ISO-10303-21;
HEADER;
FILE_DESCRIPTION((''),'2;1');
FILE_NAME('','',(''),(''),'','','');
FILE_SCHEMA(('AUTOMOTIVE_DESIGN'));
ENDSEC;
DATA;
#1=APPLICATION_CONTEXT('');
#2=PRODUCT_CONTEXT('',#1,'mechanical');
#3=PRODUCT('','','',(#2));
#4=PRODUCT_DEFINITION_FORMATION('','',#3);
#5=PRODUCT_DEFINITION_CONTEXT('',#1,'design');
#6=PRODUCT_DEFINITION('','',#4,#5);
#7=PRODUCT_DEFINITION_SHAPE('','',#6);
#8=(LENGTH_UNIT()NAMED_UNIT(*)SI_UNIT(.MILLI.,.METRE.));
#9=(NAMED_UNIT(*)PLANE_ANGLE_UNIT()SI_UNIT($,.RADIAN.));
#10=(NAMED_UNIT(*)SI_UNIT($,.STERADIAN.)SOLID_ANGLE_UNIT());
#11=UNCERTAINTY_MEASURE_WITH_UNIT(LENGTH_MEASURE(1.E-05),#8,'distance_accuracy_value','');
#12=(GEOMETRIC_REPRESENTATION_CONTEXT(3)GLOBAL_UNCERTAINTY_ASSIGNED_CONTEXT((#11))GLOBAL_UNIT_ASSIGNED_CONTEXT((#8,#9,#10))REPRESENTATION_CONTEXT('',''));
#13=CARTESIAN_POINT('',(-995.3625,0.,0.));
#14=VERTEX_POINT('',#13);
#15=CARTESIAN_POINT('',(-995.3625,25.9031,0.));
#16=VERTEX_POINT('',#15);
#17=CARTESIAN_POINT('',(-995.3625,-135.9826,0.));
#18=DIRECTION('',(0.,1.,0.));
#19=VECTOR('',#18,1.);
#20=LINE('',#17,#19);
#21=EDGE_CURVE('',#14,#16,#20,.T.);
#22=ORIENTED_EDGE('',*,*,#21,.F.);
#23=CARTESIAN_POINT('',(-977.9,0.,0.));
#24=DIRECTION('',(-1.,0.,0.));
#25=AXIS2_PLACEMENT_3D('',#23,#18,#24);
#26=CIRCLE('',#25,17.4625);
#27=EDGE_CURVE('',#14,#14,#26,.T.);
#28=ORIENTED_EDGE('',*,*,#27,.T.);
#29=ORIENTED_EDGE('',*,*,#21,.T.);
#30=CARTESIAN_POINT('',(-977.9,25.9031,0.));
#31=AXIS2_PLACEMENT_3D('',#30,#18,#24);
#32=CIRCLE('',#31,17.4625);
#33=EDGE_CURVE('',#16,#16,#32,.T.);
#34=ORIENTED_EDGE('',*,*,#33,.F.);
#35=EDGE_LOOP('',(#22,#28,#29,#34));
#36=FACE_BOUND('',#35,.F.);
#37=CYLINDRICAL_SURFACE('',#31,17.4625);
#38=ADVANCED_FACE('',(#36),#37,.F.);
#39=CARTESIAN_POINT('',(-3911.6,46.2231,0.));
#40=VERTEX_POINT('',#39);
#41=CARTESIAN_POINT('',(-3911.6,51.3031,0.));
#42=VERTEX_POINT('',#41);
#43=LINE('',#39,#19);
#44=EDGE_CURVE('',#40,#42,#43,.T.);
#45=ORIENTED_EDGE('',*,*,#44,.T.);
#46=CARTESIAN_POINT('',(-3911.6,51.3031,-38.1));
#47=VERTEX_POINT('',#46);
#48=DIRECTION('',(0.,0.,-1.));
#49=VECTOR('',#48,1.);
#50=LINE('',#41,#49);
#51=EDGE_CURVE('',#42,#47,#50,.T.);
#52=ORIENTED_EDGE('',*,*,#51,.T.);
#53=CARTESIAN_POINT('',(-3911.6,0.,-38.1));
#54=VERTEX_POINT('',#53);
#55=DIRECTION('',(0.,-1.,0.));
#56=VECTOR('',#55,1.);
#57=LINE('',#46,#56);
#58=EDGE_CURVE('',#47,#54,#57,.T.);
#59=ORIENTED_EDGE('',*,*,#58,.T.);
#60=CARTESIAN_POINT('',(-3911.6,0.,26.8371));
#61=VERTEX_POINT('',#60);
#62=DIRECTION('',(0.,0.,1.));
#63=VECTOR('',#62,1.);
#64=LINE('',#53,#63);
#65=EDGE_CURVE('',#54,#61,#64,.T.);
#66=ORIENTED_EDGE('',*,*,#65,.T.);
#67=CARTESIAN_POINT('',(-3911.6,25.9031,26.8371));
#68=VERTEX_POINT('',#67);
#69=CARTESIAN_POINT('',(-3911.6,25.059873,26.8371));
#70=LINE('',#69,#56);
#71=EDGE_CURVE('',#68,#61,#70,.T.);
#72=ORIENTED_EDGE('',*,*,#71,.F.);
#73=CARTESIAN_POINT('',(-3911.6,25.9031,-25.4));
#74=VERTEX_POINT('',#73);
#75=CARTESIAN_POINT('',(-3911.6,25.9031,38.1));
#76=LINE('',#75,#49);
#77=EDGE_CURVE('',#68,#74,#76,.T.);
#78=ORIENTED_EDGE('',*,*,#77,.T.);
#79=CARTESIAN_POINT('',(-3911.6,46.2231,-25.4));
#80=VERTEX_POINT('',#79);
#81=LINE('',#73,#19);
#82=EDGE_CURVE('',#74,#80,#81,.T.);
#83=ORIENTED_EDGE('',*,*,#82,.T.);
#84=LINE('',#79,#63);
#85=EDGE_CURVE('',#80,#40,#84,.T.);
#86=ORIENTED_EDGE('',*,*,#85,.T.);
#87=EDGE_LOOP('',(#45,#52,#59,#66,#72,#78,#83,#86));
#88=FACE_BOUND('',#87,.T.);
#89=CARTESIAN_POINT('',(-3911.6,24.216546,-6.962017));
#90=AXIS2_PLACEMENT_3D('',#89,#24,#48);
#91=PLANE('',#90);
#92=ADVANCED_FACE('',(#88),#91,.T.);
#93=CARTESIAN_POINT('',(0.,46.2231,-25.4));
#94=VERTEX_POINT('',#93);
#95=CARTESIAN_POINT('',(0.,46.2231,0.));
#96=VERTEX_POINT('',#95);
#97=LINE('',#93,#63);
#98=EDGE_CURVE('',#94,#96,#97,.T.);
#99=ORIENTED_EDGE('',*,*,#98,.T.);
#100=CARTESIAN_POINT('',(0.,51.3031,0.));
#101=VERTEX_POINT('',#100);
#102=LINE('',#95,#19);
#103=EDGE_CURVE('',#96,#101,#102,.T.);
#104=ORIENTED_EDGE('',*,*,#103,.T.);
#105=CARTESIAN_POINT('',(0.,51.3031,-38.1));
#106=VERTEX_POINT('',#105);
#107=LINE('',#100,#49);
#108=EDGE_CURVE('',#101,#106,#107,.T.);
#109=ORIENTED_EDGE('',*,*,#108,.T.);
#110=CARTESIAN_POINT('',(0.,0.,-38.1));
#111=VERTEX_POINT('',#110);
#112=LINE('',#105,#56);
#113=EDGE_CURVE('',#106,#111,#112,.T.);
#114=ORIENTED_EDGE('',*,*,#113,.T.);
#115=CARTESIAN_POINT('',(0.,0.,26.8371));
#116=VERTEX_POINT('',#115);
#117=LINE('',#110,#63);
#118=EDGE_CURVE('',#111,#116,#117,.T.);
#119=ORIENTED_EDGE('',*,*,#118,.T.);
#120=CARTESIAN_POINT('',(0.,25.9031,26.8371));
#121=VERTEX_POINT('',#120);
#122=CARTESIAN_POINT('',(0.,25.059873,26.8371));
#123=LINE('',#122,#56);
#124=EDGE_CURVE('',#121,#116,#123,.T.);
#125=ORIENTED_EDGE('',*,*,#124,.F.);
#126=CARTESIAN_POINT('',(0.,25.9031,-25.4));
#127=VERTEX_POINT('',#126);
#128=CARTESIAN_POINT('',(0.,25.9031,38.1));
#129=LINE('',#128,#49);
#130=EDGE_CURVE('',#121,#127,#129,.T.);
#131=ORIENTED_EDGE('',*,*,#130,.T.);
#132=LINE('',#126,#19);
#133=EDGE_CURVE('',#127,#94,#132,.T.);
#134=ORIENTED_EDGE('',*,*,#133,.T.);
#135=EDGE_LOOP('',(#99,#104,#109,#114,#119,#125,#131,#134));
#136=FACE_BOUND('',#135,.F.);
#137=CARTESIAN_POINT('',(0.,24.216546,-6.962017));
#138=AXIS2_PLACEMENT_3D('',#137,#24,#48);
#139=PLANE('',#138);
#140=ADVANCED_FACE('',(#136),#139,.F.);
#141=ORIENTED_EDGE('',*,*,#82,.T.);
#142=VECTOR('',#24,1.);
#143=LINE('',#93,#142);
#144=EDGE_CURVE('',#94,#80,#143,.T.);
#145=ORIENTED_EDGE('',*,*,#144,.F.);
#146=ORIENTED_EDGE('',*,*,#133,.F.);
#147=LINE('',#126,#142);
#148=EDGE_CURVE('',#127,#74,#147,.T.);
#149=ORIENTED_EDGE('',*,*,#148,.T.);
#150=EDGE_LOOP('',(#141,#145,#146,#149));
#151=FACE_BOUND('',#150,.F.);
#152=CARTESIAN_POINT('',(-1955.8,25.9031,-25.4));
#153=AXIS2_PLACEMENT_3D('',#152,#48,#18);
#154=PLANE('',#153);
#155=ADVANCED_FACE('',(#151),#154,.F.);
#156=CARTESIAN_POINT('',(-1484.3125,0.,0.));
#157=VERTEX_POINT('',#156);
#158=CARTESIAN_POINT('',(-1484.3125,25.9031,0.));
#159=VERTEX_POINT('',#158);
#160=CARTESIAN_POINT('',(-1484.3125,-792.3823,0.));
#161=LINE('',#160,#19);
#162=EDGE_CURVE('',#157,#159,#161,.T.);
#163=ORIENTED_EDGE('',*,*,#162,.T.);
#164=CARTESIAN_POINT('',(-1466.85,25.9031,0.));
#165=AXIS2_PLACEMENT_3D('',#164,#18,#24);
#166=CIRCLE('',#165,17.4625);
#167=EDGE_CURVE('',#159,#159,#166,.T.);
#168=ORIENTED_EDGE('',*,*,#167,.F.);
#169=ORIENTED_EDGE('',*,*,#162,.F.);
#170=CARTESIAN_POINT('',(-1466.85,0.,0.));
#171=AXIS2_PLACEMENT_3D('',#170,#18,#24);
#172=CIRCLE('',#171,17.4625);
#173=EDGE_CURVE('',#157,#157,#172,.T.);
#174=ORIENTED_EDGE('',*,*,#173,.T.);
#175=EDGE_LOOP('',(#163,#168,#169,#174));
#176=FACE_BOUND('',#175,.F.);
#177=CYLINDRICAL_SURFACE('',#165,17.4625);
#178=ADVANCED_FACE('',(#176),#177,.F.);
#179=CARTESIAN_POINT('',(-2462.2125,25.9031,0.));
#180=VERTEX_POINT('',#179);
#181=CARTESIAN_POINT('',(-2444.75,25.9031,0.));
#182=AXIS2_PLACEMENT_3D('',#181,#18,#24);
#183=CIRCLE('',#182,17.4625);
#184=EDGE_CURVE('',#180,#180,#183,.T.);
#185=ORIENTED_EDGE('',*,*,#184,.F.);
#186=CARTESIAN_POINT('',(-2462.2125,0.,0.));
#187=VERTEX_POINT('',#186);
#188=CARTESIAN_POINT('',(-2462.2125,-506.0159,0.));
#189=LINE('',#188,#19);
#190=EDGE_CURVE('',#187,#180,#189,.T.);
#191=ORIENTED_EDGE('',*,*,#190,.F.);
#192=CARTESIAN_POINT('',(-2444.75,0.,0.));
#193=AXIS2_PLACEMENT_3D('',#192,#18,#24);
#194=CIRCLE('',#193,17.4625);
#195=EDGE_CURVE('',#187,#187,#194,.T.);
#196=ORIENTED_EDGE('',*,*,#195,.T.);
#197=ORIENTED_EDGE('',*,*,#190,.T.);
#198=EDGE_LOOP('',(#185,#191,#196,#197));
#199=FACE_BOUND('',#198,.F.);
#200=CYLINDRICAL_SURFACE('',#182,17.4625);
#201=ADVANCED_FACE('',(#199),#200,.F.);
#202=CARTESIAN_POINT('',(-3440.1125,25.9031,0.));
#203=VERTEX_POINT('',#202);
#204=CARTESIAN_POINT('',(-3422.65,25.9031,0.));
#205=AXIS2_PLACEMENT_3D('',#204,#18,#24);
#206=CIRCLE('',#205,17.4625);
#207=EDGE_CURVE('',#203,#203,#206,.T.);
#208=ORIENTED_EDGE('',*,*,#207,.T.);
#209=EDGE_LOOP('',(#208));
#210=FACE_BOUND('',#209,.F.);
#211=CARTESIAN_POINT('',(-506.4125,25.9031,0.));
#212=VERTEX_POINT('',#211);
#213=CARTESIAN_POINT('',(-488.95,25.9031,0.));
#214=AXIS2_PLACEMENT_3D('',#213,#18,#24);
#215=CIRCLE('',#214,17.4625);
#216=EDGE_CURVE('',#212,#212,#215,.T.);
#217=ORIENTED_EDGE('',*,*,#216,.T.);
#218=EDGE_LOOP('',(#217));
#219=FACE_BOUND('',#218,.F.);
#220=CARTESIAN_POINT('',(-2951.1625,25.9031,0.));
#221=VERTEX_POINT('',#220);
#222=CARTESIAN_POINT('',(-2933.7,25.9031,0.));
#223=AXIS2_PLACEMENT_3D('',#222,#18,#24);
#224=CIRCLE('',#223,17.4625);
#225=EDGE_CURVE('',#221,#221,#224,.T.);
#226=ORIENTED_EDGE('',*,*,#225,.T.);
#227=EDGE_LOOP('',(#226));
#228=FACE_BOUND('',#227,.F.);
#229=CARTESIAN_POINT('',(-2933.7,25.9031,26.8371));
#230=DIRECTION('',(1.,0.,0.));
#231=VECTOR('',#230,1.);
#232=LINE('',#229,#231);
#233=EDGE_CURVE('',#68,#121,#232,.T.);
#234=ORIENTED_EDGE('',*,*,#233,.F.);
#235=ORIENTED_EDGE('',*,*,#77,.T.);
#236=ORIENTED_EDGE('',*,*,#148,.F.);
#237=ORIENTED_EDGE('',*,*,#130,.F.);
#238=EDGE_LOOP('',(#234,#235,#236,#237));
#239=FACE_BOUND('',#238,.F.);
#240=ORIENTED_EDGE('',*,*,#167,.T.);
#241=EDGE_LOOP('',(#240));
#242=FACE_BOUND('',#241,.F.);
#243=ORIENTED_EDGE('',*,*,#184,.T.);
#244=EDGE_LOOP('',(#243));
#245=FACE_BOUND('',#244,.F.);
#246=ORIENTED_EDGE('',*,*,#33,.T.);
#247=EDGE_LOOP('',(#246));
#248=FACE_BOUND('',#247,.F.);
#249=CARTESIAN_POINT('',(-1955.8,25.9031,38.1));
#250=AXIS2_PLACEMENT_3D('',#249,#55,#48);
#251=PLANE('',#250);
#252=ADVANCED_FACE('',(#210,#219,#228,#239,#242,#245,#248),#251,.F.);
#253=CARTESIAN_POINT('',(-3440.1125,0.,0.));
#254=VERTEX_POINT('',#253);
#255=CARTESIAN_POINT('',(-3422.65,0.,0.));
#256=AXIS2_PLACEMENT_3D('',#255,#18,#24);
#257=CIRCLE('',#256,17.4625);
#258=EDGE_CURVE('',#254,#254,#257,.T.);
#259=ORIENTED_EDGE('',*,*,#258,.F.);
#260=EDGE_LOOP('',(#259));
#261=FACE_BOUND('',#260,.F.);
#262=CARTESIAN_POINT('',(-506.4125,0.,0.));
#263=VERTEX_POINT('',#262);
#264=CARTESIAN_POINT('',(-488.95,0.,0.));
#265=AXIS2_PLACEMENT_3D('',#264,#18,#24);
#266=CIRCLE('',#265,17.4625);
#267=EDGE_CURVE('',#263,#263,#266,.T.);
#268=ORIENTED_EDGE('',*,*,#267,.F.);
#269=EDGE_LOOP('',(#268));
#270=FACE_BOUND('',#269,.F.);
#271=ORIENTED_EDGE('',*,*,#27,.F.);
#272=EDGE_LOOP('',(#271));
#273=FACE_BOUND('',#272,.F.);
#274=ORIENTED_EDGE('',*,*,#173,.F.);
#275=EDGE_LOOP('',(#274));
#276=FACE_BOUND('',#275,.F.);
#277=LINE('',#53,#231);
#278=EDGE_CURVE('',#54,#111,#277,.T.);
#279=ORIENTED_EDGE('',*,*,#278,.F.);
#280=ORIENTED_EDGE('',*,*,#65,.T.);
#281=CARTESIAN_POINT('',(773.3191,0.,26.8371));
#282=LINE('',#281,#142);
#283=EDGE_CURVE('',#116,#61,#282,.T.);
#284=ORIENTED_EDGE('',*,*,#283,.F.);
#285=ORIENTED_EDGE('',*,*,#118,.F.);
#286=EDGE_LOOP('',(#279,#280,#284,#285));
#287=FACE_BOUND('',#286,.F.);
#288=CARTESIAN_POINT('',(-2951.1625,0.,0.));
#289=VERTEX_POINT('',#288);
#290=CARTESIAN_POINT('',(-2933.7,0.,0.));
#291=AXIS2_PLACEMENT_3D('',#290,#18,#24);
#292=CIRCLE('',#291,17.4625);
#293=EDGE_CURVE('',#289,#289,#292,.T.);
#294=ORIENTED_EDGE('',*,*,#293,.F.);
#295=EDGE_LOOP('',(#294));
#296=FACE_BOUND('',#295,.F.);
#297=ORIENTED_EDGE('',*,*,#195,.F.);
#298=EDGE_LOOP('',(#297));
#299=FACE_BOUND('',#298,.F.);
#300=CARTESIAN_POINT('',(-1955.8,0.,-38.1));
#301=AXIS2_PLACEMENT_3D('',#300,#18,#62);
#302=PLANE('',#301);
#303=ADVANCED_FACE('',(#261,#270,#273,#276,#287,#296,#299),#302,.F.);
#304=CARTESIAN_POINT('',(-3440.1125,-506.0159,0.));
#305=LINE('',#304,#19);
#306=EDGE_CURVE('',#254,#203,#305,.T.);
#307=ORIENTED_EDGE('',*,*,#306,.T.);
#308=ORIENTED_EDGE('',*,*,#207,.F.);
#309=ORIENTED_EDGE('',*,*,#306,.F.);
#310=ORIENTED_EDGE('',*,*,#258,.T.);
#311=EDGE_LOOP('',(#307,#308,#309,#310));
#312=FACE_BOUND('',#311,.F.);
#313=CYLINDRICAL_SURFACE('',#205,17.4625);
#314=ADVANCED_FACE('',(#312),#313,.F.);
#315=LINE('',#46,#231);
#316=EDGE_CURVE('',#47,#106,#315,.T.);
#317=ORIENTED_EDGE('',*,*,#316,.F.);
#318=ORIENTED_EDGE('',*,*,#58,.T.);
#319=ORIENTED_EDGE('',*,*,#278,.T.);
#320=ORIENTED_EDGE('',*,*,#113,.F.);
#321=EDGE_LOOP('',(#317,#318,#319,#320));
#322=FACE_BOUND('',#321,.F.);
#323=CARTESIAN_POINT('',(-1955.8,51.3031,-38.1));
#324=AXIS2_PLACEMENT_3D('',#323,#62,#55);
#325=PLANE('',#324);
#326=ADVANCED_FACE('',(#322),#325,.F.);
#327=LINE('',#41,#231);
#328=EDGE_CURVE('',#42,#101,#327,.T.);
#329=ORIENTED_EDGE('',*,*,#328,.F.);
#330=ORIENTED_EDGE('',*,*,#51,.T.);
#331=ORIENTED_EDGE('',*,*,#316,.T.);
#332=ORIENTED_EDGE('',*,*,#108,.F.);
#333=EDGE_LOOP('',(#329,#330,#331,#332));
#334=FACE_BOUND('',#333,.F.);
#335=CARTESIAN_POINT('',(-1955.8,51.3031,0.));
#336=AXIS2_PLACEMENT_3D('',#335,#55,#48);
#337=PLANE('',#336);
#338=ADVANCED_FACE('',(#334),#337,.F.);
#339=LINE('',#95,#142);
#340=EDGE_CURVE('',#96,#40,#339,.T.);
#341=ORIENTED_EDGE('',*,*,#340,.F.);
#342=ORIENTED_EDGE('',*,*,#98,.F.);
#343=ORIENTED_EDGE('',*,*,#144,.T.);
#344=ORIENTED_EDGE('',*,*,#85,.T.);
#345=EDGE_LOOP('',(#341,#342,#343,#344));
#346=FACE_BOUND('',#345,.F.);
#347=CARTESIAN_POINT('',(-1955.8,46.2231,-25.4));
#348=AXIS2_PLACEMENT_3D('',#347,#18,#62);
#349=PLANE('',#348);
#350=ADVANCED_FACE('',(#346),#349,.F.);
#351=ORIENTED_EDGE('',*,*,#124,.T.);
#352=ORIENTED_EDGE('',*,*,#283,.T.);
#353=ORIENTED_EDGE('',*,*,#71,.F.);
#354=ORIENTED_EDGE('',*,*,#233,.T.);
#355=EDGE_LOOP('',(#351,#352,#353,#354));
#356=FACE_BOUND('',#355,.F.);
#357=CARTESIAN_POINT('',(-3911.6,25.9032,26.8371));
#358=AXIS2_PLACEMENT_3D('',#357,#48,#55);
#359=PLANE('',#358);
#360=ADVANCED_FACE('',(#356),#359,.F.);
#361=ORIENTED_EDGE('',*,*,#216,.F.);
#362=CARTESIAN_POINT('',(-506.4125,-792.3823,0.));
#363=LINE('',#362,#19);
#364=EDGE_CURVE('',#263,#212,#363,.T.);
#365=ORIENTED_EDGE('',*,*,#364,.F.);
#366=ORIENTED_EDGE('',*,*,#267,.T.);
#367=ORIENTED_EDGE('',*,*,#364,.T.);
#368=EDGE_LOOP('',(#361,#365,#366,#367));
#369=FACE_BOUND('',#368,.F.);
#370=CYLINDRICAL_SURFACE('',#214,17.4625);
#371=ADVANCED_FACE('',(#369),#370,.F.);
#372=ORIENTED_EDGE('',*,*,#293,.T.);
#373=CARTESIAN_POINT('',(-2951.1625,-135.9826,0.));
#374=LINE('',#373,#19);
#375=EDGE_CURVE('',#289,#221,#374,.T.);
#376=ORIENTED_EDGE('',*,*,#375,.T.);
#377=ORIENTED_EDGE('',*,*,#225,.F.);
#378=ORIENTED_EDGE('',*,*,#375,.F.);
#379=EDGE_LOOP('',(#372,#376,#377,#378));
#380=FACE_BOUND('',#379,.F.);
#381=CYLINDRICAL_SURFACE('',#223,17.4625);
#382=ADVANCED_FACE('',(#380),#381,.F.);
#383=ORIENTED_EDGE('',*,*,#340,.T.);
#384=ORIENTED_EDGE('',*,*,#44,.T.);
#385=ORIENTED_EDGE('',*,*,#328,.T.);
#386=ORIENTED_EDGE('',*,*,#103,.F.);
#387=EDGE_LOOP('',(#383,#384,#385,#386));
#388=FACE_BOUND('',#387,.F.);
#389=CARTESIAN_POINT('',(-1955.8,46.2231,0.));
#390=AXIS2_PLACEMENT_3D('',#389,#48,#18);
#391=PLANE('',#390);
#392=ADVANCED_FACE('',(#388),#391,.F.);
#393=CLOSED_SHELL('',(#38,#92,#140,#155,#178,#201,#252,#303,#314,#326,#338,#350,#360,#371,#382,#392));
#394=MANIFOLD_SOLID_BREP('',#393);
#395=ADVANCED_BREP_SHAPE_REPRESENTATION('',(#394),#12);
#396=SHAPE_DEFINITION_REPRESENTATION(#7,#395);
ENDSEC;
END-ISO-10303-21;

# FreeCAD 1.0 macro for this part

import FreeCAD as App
import Part
import Sketcher

V = App.Vector
Q = App.Units.Quantity

doc = App.newDocument("Part")
body = doc.addObject("PartDesign::Body", "Body")

sketch1 = body.newObject("Sketcher::SketchObject", "Sketch")
sketch1.AttachmentSupport = (doc.getObject("YZ_Plane"), [""])
sketch1.MapMode = "FlatFace"
sketch1.AttachmentOffset = App.Placement(V(0, 0, -77 * 25.4), App.Rotation())
sketch1.addGeometry([
    Part.LineSegment(V(51, -38, 0), V(0, -38, 0)),
    Part.LineSegment(V(0, -38, 0), V(0, 38, 0)),
    Part.LineSegment(V(0, 38, 0), V(26, 38, 0)),
    Part.LineSegment(V(26, 38, 0), V(26, -25, 0)),
    Part.LineSegment(V(26, -25, 0), V(46, -25, 0)),
    Part.LineSegment(V(46, -25, 0), V(46, 0, 0)),
    Part.LineSegment(V(46, 0, 0), V(51, 0, 0)),
    Part.LineSegment(V(51, 0, 0), V(51, -38, 0)),
], False)
sketch1.addConstraint([
    Sketcher.Constraint("Coincident", 0, 2, 1, 1),
    Sketcher.Constraint("Coincident", 1, 2, 2, 1),
    Sketcher.Constraint("Coincident", 2, 2, 3, 1),
    Sketcher.Constraint("Coincident", 3, 2, 4, 1),
    Sketcher.Constraint("Coincident", 4, 2, 5, 1),
    Sketcher.Constraint("Coincident", 5, 2, 6, 1),
    Sketcher.Constraint("Coincident", 6, 2, 7, 1),
    Sketcher.Constraint("Coincident", 7, 2, 0, 1),
    Sketcher.Constraint("Horizontal", 0),
    Sketcher.Constraint("Vertical", 1),
    Sketcher.Constraint("Horizontal", 2),
    Sketcher.Constraint("Vertical", 3),
    Sketcher.Constraint("Horizontal", 4),
    Sketcher.Constraint("Vertical", 5),
    Sketcher.Constraint("Horizontal", 6),
    Sketcher.Constraint("Vertical", 7),
    Sketcher.Constraint("Symmetric", 0, 2, 1, 2, -1, 1),
    Sketcher.Constraint("PointOnObject", 5, 2, -1),
    Sketcher.Constraint("DistanceY", 1, 1, 1, 2, Q("3 in")),
    Sketcher.Constraint("DistanceY", 5, 1, 5, 2, Q("1 in")),
    Sketcher.Constraint("DistanceX", 4, 1, 4, 2, Q("0.8 in")),
    Sketcher.Constraint("DistanceX", 6, 1, 6, 2, Q("0.2 in")),
    Sketcher.Constraint("DistanceX", 0, 2, 0, 1, Q("2.0198 in")),
])
pad1 = body.newObject("PartDesign::Pad", "Pad")
pad1.Profile = sketch1
pad1.Length = Q("154 in")
pad1.Midplane = True

sketch2 = body.newObject("Sketcher::SketchObject", "Sketch001")
sketch2.AttachmentSupport = (doc.getObject("XZ_Plane"), [""])
sketch2.MapMode = "FlatFace"
sketch2.AttachmentOffset = App.Placement(V(0, 0, -1.0198071 * 25.4), App.Rotation())
sketch2.addGeometry([
    Part.Circle(V(-978, 0, 0), V(0, 0, 1), 17),
    Part.Circle(V(-2934, 0, 0), V(0, 0, 1), 17),
], False)
sketch2.addConstraint([
    Sketcher.Constraint("Equal", 0, 1),
    Sketcher.Constraint("PointOnObject", 0, 3, -1),
    Sketcher.Constraint("PointOnObject", 1, 3, -1),
    Sketcher.Constraint("Diameter", 0, Q("1.375 in")),
    Sketcher.Constraint("DistanceX", 1, 3, 0, 3, Q("77 in")),
    Sketcher.Constraint("DistanceX", 0, 3, -1, 1, Q("38.5 in")),
])
pocket1 = body.newObject("PartDesign::Pocket", "Pocket")
pocket1.Profile = sketch2
pocket1.Type = "TwoLengths"
pocket1.Length = 161.8857
pocket1.Length2 = 5.442
pocket1.Reversed = True

sketch3 = body.newObject("Sketcher::SketchObject", "Sketch002")
sketch3.AttachmentSupport = (doc.getObject("XZ_Plane"), [""])
sketch3.MapMode = "FlatFace"
sketch3.AttachmentOffset = App.Placement(V(0, 0, -1.0198071 * 25.4), App.Rotation())
sketch3.addGeometry([
    Part.Circle(V(-489, 0, 0), V(0, 0, 1), 17),
    Part.Circle(V(-1467, 0, 0), V(0, 0, 1), 17),
], False)
sketch3.addConstraint([
    Sketcher.Constraint("Equal", 0, 1),
    Sketcher.Constraint("PointOnObject", 0, 3, -1),
    Sketcher.Constraint("PointOnObject", 1, 3, -1),
    Sketcher.Constraint("Diameter", 0, Q("1.375 in")),
    Sketcher.Constraint("DistanceX", 1, 3, 0, 3, Q("38.5 in")),
    Sketcher.Constraint("DistanceX", 0, 3, -1, 1, Q("19.25 in")),
])
pocket2 = body.newObject("PartDesign::Pocket", "Pocket001")
pocket2.Profile = sketch3
pocket2.Type = "TwoLengths"
pocket2.Length = 818.2854
pocket2.Length2 = 15.4522
pocket2.Reversed = True

sketch4 = body.newObject("Sketcher::SketchObject", "Sketch003")
sketch4.AttachmentSupport = (doc.getObject("XZ_Plane"), [""])
sketch4.MapMode = "FlatFace"
sketch4.AttachmentOffset = App.Placement(V(0, 0, -1.0198071 * 25.4), App.Rotation())
sketch4.addGeometry([
    Part.Circle(V(-2445, 0, 0), V(0, 0, 1), 17),
    Part.Circle(V(-3423, 0, 0), V(0, 0, 1), 17),
], False)
sketch4.addConstraint([
    Sketcher.Constraint("Equal", 0, 1),
    Sketcher.Constraint("PointOnObject", 0, 3, -1),
    Sketcher.Constraint("PointOnObject", 1, 3, -1),
    Sketcher.Constraint("Diameter", 0, Q("1.375 in")),
    Sketcher.Constraint("DistanceX", 1, 3, 0, 3, Q("38.5 in")),
    Sketcher.Constraint("DistanceX", 0, 3, -1, 1, Q("96.25 in")),
])
pocket3 = body.newObject("PartDesign::Pocket", "Pocket002")
pocket3.Profile = sketch4
pocket3.Type = "TwoLengths"
pocket3.Length = Q("20.9416929 in")
pocket3.Length2 = 6.6889
pocket3.Reversed = True

sketch5 = body.newObject("Sketcher::SketchObject", "Sketch004")
sketch5.AttachmentSupport = (doc.getObject("YZ_Plane"), [""])
sketch5.MapMode = "FlatFace"
sketch5.AttachmentOffset = App.Placement(V(0, 0, -154 * 25.4), App.Rotation())
sketch5.addGeometry([
    Part.LineSegment(V(26, 38, 0), V(26, 27, 0)),
    Part.LineSegment(V(26, 27, 0), V(0, 27, 0)),
    Part.LineSegment(V(0, 27, 0), V(0, 38, 0)),
    Part.LineSegment(V(0, 38, 0), V(26, 38, 0)),
], False)
sketch5.addConstraint([
    Sketcher.Constraint("Coincident", 0, 2, 1, 1),
    Sketcher.Constraint("Coincident", 1, 2, 2, 1),
    Sketcher.Constraint("Coincident", 2, 2, 3, 1),
    Sketcher.Constraint("Coincident", 3, 2, 0, 1),
    Sketcher.Constraint("Vertical", 0),
    Sketcher.Constraint("Horizontal", 1),
    Sketcher.Constraint("Vertical", 2),
    Sketcher.Constraint("Horizontal", 3),
    Sketcher.Constraint("PointOnObject", 1, 2, -2),
    Sketcher.Constraint("DistanceY", -1, 1, 2, 2, Q("1.5 in")),
    Sketcher.Constraint("DistanceX", 1, 2, 1, 1, Q("1.0198 in")),
    Sketcher.Constraint("DistanceY", 0, 2, 0, 1, 11.263),
])
pocket4 = body.newObject("PartDesign::Pocket", "Pocket003")
pocket4.Profile = sketch5
pocket4.Type = "ThroughAll"
pocket4.Midplane = True

doc.recompute()
